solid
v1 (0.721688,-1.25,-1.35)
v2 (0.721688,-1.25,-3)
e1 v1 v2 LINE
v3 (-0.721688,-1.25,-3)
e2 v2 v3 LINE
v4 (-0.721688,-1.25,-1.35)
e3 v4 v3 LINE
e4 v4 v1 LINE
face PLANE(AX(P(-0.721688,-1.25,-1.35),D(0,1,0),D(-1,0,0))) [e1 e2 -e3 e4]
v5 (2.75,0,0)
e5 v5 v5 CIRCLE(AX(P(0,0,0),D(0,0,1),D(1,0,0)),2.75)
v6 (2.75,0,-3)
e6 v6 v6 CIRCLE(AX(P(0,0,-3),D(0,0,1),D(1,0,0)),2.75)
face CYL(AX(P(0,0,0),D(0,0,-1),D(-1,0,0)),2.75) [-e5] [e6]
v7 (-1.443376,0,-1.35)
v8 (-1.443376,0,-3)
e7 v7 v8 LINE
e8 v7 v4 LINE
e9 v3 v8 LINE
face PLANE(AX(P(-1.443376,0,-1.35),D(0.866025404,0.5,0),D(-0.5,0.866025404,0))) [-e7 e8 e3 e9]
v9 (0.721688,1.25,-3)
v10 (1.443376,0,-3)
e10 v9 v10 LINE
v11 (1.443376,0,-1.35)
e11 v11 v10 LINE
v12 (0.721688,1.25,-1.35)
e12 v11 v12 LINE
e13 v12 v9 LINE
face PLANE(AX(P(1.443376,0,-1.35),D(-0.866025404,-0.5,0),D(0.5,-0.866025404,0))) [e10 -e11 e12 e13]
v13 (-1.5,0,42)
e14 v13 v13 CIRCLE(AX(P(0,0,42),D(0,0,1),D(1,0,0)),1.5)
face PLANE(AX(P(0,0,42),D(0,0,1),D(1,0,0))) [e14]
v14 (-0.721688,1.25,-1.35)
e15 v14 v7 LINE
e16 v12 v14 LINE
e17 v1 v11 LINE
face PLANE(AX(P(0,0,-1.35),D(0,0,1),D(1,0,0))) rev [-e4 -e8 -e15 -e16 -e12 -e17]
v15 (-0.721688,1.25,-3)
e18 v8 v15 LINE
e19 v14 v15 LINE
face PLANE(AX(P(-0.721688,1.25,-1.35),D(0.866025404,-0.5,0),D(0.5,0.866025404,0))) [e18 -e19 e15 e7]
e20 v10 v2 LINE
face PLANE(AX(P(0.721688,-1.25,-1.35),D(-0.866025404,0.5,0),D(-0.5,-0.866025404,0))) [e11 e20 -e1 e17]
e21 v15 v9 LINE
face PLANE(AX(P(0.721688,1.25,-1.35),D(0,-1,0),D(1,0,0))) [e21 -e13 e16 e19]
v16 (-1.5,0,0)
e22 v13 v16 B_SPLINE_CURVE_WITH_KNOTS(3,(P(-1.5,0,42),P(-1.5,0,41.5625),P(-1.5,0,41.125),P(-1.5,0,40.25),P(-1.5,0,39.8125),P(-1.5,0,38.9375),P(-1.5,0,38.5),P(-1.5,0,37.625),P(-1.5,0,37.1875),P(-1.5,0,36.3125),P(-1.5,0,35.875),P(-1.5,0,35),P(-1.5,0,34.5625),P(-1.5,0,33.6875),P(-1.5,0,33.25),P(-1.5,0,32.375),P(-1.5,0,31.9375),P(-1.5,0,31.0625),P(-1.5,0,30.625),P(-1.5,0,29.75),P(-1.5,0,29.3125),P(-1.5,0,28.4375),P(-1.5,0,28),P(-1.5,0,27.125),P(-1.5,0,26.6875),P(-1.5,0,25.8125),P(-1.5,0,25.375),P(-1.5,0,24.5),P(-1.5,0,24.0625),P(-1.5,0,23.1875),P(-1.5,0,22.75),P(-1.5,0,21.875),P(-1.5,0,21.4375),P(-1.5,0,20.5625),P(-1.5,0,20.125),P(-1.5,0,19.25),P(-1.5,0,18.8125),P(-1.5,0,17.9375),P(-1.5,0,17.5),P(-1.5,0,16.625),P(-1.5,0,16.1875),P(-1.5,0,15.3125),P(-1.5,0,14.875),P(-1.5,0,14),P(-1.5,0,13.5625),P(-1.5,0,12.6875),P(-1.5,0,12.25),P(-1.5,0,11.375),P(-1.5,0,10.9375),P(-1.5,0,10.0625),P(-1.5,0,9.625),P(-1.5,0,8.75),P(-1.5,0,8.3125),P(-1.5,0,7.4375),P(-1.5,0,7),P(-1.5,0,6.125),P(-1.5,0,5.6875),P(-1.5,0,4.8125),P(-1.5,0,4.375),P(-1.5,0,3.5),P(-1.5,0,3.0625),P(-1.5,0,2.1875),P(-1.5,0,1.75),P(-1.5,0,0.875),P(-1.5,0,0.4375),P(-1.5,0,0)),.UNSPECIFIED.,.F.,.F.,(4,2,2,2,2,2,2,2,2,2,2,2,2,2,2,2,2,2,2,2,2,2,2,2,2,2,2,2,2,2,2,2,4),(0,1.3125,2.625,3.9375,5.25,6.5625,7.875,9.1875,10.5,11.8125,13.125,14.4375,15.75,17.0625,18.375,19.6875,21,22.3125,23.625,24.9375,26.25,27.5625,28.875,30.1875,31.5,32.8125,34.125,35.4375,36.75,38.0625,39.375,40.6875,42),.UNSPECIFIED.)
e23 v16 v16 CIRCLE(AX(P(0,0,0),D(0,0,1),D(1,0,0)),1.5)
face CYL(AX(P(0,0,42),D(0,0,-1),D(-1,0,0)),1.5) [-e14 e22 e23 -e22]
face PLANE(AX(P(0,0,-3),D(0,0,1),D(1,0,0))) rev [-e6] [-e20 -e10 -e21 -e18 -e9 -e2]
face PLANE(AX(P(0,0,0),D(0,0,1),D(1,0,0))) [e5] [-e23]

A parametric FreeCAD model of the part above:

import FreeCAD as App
import Part
import Sketcher

V = App.Vector
Q = App.Units.Quantity


def add_polygon(sketch, points):
    """Adds a closed chain of lines whose ends are joined by coincident constraints."""
    first, n = sketch.GeometryCount, len(points)
    for a, b in zip(points, points[1:] + points[:1]):
        sketch.addGeometry(Part.LineSegment(App.Vector(*a, 0), App.Vector(*b, 0)), False)
    for i in range(n):
        sketch.addConstraint(Sketcher.Constraint("Coincident", first + i, 2, first + (i + 1) % n, 1))

doc = App.newDocument("Part")
params = doc.addObject("Spreadsheet::Sheet", "Params")
for row, (alias, value) in enumerate([
    ("sketch1_diameter", "5.5 mm"),
    ("pad1_length", "3 mm"),
    ("sketch2_diameter", "3 mm"),
    ("pad2_length", "42 mm"),
    ("pocket1_length", "1.75 mm"),
], start=1):
    params.set(f"A{row}", alias)
    params.set(f"B{row}", "=" + value)
    params.setAlias(f"B{row}", alias)

body = doc.addObject("PartDesign::Body", "Body")

# Sketch on XY plane
sketch1 = body.newObject("Sketcher::SketchObject", "Sketch")
sketch1.AttachmentSupport = (doc.getObject("XY_Plane"), [""])
sketch1.MapMode = "FlatFace"
sketch1.AttachmentOffset = App.Placement(V(0, 0, -3), App.Rotation())
sketch1.addGeometry(Part.Circle(V(0, 0, 0), V(0, 0, 1), 2.8), False)
sketch1.addConstraint([
    Sketcher.Constraint("Coincident", 0, 3, -1, 1),
    Sketcher.Constraint("Diameter", 0, Q("5.5 mm")),
])
sketch1.setExpression("Constraints[1]", "Params.sketch1_diameter")
pad1 = body.newObject("PartDesign::Pad", "Pad")
pad1.Profile = sketch1
pad1.setExpression("Length", "Params.pad1_length")

# Sketch on XY plane
sketch2 = body.newObject("Sketcher::SketchObject", "Sketch001")
sketch2.AttachmentSupport = (doc.getObject("XY_Plane"), [""])
sketch2.MapMode = "FlatFace"
sketch2.addGeometry(Part.Circle(V(0, 0, 0), V(0, 0, 1), 1.5), False)
sketch2.addConstraint([
    Sketcher.Constraint("Coincident", 0, 3, -1, 1),
    Sketcher.Constraint("Diameter", 0, Q("3 mm")),
])
sketch2.setExpression("Constraints[1]", "Params.sketch2_diameter")
pad2 = body.newObject("PartDesign::Pad", "Pad001")
pad2.Profile = sketch2
pad2.setExpression("Length", "Params.pad2_length")

# Sketch on XY plane
sketch3 = body.newObject("Sketcher::SketchObject", "Sketch002")
sketch3.AttachmentSupport = (doc.getObject("XY_Plane"), [""])
sketch3.MapMode = "FlatFace"
sketch3.AttachmentOffset = App.Placement(V(0, 0, -3.1), App.Rotation())
add_polygon(sketch3, [(1.4, 0), (0.7, 1.2), (-0.7, 1.2), (-1.4, 0), (-0.7, -1.2), (0.7, -1.2)])  # lines 0-5
sketch3.addConstraint([
    Sketcher.Constraint("Horizontal", 1),
    Sketcher.Constraint("Horizontal", 4),
    Sketcher.Constraint("Symmetric", 0, 2, 3, 2, -1, 1),
    Sketcher.Constraint("Symmetric", 2, 2, 5, 2, -1, 1),
    Sketcher.Constraint("PointOnObject", 2, 2, -1),
    Sketcher.Constraint("Parallel", 2, 5),
    Sketcher.Constraint("Vertical", 1, 2, 3, 2),
    Sketcher.Constraint("Angle", 0, Q("120 deg")),
    Sketcher.Constraint("DistanceY", 3, 2, 1, 2, Q("2.5 mm")),
    Sketcher.Constraint("DistanceX", 1, 2, 1, 1, Q("1.443376 mm")),
])
pocket1 = body.newObject("PartDesign::Pocket", "Pocket")
pocket1.Profile = sketch3
pocket1.setExpression("Length", "Params.pocket1_length")
pocket1.Reversed = True

doc.recompute()
